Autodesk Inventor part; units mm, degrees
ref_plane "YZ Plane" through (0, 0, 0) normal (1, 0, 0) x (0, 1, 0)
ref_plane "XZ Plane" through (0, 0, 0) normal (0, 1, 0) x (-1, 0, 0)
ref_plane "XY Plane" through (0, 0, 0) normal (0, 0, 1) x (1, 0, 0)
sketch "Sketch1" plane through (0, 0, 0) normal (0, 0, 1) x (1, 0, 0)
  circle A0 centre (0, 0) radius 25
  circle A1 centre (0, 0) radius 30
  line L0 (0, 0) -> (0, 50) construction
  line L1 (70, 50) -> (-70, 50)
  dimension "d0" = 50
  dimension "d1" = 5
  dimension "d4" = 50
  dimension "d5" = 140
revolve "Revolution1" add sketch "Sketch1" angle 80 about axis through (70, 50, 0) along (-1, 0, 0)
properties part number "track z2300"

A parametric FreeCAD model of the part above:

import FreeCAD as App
import Part
import Sketcher
from FreeCAD import Vector
Q = App.Units.Quantity

doc = App.newDocument("Part")
body = doc.addObject("PartDesign::Body", "Body")

# Sketch on XY plane
sketch1 = body.newObject("Sketcher::SketchObject", "Sketch")
sketch1.AttachmentSupport = (doc.getObject("XY_Plane"), [""])
sketch1.MapMode = "FlatFace"
sketch1.addGeometry([
    Part.Circle(Vector(0, 0, 0), Vector(0, 0, 1), 30),
    Part.Circle(Vector(0, 0, 0), Vector(0, 0, 1), 25),
], False)
sketch1.addGeometry(Part.LineSegment(Vector(0, 50, 0), Vector(-10, 50, 0)), True)  # axis
sketch1.addConstraint([
    Sketcher.Constraint("Horizontal", 2),
    Sketcher.Constraint("Coincident", 0, 3, -1, 1),
    Sketcher.Constraint("Coincident", 1, 3, -1, 1),
    Sketcher.Constraint("PointOnObject", 2, 1, -2),
    Sketcher.Constraint("Diameter", 1, Q("50 mm")),
    Sketcher.Constraint("Diameter", 0, Q("60 mm")),
    Sketcher.Constraint("DistanceY", -1, 1, 2, 1, Q("50 mm")),
    Sketcher.Constraint("DistanceX", 2, 2, 2, 1, Q("10 mm")),
])
revolution = body.newObject("PartDesign::Revolution", "Revolution")
revolution.Profile = sketch1
revolution.ReferenceAxis = (sketch1, ["Axis0"])
revolution.Angle = 80

doc.recompute()
